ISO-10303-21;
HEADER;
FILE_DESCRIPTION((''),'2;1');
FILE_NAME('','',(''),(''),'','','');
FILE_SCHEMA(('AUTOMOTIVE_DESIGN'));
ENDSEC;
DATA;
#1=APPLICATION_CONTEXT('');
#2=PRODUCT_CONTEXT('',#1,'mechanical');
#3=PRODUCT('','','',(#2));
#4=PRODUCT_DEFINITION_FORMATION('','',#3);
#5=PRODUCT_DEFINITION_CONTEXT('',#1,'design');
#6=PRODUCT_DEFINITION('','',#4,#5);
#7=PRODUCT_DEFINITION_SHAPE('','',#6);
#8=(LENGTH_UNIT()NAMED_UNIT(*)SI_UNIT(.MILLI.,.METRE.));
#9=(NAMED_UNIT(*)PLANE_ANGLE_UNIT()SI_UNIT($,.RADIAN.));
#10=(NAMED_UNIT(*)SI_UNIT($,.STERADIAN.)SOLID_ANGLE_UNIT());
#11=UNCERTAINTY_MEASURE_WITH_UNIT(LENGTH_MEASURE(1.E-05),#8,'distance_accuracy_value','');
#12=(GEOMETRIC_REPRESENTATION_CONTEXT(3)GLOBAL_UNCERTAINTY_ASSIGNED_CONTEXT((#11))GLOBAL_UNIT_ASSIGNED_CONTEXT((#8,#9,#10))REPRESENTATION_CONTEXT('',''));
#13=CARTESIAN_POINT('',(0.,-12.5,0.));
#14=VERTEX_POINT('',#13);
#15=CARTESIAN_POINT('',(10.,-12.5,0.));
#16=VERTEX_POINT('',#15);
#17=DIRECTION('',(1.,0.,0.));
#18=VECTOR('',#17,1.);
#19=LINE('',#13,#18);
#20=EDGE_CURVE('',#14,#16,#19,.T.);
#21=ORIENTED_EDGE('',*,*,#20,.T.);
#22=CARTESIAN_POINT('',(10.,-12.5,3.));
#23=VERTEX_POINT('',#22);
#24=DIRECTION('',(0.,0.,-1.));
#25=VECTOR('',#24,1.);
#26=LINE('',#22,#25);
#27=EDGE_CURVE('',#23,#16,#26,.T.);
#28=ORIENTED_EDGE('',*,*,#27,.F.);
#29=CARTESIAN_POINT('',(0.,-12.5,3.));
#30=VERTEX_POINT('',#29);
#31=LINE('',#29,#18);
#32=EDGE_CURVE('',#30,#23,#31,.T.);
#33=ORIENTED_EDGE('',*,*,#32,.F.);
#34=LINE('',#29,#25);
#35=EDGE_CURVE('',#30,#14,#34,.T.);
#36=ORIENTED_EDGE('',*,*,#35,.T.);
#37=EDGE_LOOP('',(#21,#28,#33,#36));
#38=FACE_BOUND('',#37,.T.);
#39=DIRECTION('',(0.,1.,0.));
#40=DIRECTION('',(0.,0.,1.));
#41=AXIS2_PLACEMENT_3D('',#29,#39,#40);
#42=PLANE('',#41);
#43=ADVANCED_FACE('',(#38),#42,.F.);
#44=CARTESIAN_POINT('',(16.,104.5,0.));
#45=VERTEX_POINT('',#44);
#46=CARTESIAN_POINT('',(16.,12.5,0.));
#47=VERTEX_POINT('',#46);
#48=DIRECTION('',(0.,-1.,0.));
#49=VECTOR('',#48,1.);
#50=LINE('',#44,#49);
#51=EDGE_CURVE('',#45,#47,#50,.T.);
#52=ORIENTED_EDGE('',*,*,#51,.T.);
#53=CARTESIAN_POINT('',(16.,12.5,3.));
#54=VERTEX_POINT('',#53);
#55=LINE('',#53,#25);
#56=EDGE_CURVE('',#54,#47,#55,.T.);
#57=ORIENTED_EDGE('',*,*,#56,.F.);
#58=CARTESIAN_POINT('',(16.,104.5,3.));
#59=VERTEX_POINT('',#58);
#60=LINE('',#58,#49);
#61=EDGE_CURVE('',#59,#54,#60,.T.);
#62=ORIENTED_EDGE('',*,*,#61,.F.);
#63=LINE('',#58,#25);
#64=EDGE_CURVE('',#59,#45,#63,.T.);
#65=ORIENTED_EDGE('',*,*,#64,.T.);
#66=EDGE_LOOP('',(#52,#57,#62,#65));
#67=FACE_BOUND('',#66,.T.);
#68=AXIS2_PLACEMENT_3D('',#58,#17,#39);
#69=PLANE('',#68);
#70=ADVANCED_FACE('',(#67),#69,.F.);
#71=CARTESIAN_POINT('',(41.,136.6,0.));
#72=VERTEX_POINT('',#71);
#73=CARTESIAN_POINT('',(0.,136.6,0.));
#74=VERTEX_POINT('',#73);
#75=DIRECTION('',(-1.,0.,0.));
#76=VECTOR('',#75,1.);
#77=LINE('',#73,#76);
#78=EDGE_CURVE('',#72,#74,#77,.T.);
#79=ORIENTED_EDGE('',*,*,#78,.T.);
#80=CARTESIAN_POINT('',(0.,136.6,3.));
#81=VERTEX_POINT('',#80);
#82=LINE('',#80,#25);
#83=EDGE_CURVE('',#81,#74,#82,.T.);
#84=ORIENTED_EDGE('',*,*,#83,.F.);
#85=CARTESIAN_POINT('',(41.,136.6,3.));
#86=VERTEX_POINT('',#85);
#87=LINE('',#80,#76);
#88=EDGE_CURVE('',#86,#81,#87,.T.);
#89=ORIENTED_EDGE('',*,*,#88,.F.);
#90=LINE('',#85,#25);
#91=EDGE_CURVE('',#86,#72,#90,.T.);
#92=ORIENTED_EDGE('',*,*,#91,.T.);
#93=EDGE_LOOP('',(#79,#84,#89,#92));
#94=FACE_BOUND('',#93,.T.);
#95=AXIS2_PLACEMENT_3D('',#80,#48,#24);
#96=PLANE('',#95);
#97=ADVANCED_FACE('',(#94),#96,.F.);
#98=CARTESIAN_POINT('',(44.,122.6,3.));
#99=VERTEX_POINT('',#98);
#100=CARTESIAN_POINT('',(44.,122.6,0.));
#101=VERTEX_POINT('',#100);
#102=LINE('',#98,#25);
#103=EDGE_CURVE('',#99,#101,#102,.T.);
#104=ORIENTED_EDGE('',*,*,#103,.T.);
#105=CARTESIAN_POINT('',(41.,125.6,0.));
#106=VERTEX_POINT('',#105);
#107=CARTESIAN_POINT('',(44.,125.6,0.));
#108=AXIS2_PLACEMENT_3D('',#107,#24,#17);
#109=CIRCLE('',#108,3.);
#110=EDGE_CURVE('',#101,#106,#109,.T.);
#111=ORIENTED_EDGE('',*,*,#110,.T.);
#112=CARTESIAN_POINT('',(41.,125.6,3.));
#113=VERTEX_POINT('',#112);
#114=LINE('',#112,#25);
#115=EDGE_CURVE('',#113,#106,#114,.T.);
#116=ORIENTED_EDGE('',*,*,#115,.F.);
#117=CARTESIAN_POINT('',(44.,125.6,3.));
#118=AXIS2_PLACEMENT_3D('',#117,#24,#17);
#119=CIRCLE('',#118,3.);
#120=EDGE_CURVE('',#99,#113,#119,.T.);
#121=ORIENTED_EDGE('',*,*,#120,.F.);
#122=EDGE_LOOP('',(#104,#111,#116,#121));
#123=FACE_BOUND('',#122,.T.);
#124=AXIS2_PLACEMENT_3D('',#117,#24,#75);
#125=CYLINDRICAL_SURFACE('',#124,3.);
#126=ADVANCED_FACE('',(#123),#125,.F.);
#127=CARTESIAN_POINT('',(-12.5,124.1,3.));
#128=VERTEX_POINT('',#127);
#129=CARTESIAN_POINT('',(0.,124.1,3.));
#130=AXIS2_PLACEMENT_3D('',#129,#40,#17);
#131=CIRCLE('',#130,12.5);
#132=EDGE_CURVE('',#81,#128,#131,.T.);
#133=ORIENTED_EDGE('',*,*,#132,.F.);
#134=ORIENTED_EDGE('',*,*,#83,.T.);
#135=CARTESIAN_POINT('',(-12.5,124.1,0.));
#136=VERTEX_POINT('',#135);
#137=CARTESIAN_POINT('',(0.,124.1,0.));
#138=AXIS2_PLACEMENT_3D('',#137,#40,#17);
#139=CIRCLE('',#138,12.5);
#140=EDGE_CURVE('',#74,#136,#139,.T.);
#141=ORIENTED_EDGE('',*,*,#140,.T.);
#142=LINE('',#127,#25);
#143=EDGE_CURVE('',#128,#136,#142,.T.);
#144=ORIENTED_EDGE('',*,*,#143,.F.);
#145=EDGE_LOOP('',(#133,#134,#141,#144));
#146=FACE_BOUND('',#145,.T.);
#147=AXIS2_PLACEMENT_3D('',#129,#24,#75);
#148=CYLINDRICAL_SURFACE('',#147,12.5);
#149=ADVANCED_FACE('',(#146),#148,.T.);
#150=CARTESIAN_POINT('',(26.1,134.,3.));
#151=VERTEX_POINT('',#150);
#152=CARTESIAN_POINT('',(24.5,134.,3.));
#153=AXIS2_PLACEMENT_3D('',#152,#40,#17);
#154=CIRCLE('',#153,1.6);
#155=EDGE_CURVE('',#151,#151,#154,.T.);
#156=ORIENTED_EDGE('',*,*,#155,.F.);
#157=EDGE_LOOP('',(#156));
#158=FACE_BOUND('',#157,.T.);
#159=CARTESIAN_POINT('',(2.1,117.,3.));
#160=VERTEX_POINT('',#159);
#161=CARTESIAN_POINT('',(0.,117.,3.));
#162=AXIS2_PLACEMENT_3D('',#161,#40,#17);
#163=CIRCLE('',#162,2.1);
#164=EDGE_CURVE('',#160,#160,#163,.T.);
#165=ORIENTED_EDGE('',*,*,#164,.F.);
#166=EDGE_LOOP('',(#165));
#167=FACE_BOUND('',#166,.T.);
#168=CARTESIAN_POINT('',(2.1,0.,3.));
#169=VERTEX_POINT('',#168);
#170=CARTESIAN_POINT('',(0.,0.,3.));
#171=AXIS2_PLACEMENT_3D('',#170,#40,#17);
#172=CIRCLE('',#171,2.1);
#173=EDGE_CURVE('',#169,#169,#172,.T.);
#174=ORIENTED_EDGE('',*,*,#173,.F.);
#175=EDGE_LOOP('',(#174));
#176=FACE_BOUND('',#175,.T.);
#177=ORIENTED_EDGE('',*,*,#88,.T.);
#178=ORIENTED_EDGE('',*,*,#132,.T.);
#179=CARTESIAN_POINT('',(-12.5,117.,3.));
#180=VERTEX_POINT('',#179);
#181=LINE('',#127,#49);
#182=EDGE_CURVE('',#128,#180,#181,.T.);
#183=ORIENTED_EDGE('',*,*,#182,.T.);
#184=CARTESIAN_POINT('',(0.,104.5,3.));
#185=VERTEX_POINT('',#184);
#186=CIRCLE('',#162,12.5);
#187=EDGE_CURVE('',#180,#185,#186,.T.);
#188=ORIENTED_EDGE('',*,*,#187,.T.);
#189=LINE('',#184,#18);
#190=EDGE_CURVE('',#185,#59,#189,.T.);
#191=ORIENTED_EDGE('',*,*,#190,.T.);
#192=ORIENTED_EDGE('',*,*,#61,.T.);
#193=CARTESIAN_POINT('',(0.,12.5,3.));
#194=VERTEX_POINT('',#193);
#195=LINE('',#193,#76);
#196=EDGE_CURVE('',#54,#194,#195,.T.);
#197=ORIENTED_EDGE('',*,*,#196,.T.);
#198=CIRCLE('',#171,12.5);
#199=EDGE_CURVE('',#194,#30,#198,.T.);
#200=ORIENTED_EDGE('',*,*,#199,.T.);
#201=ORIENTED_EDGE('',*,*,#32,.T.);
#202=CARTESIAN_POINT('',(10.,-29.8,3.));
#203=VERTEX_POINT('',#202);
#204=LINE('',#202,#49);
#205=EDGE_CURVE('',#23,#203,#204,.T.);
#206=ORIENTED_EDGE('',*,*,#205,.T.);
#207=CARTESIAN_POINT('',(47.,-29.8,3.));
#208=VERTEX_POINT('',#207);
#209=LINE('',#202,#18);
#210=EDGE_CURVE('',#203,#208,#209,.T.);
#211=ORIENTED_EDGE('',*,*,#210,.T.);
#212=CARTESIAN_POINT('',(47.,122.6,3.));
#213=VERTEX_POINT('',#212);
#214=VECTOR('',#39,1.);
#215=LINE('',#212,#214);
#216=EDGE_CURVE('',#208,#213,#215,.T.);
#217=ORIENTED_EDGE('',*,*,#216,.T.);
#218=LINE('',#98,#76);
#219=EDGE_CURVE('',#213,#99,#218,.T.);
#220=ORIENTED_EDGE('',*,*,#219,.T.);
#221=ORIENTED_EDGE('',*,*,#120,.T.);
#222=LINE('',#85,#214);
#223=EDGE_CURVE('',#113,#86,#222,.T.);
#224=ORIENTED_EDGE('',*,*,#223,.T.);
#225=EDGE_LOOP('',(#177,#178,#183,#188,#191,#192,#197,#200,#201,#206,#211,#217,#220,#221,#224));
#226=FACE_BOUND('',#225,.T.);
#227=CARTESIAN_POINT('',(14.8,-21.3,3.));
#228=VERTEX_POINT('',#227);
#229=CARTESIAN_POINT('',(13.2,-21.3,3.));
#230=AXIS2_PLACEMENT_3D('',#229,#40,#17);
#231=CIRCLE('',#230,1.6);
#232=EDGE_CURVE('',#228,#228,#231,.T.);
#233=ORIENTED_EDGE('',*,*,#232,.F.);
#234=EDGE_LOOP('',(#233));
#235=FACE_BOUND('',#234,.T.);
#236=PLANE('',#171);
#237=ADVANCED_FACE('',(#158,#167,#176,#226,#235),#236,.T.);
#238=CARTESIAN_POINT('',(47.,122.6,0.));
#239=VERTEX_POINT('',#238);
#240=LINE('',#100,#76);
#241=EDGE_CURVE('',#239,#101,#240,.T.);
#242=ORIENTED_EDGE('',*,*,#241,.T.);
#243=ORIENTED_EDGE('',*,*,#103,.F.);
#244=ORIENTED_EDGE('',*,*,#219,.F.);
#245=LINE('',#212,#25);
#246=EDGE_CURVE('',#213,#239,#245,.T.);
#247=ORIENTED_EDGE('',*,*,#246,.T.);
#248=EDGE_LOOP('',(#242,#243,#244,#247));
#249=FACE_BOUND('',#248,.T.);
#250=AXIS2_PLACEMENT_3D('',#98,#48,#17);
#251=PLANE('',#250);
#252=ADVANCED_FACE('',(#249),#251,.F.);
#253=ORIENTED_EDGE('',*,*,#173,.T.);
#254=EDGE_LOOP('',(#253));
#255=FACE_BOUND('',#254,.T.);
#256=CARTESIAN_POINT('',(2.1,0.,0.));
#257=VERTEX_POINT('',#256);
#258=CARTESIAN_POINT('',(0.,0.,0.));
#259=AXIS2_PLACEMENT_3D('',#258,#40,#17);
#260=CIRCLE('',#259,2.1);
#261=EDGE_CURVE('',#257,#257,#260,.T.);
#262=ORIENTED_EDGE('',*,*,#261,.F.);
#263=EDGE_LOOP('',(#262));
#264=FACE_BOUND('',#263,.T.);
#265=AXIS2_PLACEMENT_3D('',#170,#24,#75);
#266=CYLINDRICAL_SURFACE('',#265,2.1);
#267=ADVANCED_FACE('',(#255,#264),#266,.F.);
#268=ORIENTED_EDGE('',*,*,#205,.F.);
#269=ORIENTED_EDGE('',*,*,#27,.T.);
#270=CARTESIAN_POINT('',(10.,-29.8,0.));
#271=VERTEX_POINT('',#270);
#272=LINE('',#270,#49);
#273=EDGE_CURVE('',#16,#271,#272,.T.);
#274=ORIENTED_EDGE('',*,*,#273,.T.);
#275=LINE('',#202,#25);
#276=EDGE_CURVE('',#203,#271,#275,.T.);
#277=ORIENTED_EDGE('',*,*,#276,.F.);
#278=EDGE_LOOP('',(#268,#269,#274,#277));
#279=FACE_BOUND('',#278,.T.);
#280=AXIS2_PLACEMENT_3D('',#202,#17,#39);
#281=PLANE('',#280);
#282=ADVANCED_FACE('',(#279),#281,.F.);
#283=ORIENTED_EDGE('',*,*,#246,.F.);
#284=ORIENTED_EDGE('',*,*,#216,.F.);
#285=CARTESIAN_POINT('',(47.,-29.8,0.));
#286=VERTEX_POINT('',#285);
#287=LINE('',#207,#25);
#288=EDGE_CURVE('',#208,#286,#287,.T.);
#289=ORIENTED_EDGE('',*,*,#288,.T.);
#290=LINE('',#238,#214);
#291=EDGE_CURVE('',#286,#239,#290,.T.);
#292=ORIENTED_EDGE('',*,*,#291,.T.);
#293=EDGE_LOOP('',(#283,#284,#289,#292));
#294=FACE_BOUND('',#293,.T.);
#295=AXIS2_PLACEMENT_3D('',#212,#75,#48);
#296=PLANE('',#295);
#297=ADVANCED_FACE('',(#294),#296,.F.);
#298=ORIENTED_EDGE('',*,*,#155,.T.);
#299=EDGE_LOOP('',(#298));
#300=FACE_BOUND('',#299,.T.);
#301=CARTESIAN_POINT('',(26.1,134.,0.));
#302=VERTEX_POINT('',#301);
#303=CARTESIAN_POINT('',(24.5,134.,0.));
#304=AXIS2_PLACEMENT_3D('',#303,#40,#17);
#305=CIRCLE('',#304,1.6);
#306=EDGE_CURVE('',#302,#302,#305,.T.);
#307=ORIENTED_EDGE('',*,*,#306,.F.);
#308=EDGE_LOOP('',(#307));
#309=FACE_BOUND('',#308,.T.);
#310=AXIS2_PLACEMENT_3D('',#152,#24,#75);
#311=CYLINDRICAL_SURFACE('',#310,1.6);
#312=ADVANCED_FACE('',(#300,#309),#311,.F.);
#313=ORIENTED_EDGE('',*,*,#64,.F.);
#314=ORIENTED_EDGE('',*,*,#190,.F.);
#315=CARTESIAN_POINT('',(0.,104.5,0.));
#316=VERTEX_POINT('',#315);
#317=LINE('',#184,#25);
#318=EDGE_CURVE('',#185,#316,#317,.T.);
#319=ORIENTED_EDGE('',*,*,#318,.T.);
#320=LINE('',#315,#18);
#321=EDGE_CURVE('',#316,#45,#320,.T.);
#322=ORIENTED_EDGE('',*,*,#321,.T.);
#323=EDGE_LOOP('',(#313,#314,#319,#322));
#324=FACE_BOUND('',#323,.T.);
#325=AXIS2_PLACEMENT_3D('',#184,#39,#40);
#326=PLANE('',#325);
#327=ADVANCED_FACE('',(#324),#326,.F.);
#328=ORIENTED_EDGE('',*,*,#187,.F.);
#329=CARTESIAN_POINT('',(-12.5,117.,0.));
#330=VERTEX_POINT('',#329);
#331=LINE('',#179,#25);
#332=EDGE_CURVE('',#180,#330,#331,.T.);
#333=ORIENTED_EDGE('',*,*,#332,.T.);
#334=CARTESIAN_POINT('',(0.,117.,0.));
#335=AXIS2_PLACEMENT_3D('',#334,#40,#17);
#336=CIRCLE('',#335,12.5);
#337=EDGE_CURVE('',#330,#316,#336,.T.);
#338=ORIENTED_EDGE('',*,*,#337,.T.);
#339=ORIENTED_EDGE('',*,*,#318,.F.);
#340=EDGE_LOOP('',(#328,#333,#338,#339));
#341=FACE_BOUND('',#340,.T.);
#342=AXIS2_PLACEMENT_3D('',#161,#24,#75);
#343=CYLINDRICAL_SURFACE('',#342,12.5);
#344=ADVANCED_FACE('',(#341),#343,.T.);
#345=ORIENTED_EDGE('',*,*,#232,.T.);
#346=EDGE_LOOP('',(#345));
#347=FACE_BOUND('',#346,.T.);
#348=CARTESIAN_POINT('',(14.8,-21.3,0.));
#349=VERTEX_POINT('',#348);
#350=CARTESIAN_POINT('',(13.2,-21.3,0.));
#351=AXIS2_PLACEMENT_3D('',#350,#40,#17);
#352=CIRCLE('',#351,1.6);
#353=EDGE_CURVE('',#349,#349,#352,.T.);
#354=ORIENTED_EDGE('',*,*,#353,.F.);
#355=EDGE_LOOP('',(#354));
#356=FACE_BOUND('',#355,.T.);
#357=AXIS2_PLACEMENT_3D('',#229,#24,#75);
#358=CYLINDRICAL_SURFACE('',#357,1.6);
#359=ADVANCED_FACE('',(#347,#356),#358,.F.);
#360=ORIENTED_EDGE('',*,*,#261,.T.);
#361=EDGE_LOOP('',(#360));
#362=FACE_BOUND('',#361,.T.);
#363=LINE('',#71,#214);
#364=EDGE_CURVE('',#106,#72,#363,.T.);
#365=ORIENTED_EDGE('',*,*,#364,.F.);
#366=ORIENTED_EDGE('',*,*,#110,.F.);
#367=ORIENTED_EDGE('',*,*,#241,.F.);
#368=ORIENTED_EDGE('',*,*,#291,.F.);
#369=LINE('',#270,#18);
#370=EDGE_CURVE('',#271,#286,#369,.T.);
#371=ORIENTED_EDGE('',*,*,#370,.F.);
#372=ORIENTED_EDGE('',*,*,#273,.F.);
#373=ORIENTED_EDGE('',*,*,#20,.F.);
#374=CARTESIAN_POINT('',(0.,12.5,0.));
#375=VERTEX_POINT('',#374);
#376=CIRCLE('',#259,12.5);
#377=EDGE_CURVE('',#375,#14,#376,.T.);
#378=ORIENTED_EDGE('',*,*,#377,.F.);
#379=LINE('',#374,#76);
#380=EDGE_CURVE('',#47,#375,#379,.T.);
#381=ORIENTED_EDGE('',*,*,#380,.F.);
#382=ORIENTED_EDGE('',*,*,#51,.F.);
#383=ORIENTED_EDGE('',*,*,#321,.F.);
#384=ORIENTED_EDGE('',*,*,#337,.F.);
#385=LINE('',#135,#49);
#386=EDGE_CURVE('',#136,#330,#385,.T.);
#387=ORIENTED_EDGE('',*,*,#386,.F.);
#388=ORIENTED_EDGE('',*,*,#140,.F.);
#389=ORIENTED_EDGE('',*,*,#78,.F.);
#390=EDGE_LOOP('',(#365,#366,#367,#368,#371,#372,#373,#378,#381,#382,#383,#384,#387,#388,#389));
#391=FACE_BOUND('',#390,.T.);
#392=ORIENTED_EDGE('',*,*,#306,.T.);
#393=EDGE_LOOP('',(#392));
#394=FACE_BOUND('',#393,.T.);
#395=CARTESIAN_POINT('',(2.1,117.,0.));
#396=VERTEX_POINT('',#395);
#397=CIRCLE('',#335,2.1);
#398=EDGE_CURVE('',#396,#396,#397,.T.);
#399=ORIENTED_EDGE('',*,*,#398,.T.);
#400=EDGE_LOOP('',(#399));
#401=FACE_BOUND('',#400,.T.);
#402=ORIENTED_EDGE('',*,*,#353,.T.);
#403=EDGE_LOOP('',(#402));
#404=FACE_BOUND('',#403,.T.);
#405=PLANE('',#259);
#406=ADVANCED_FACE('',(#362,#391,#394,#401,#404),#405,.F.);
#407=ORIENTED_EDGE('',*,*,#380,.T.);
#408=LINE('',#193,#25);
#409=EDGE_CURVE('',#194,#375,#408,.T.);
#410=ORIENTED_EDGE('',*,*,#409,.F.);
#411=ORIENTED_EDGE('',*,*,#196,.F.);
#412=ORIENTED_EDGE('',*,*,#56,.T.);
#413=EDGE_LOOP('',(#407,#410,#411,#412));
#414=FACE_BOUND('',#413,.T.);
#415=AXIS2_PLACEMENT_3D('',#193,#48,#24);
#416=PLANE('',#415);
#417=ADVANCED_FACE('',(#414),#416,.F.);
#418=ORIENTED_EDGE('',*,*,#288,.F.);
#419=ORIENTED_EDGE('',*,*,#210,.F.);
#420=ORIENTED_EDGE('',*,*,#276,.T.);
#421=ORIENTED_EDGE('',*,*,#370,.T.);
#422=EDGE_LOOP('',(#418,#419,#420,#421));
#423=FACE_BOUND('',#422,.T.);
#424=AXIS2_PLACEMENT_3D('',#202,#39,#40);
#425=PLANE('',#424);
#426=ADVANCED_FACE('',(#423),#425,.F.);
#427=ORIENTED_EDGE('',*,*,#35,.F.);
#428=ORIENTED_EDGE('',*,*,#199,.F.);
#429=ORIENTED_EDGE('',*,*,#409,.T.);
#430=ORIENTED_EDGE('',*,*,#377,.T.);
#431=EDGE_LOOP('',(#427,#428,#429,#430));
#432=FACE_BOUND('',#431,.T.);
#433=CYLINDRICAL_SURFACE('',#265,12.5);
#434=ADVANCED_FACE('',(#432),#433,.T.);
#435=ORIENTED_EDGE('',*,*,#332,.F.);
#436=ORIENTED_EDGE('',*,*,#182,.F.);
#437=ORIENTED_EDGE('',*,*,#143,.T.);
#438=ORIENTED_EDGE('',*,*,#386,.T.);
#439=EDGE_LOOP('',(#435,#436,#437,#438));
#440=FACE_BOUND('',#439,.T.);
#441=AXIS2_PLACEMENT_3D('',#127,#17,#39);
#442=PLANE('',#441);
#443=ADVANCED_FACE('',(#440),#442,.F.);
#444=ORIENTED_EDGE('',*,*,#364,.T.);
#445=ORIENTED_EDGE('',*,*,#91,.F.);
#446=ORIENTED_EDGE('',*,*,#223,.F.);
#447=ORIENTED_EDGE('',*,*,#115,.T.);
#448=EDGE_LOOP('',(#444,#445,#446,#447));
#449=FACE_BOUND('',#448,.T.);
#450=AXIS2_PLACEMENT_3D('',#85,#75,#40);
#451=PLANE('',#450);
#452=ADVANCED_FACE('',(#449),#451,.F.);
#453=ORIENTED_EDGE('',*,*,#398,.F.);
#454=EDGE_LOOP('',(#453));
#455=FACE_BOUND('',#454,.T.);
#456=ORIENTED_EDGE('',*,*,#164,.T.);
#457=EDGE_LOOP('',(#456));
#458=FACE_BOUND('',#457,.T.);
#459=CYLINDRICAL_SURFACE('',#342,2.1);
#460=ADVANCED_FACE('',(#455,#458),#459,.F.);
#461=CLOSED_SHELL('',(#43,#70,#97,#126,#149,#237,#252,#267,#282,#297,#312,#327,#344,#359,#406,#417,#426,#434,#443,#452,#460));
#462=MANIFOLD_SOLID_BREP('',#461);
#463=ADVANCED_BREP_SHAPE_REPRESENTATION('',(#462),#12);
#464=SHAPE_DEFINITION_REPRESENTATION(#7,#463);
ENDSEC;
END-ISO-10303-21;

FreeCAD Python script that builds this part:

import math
import FreeCAD as App
import Part
import Sketcher

V = App.Vector
Q = App.Units.Quantity

doc = App.newDocument("Part")
body = doc.addObject("PartDesign::Body", "Body")

# Sketch on XY plane
sketch1 = doc.addObject("Sketcher::SketchObject", "Sketch")
body.addObject(sketch1)
sketch1.AttachmentSupport = (doc.XY_Plane, [""])
sketch1.MapMode = "FlatFace"
sketch1.addGeometry(Part.LineSegment(V(41, 125.6, 0), V(41, 136.6, 0)), False)
sketch1.addGeometry(Part.LineSegment(V(41, 136.6, 0), V(0, 136.6, 0)), False)
sketch1.addGeometry(Part.ArcOfCircle(Part.Circle(V(0, 124.1, 0), V(0, 0, 1), 12.5), math.radians(90), math.radians(180)), False)
sketch1.addGeometry(Part.LineSegment(V(-12.5, 124.1, 0), V(-12.5, 117, 0)), False)
sketch1.addGeometry(Part.ArcOfCircle(Part.Circle(V(0, 117, 0), V(0, 0, 1), 12.5), math.radians(180), math.radians(270)), False)
sketch1.addGeometry(Part.LineSegment(V(0, 104.5, 0), V(16, 104.5, 0)), False)
sketch1.addGeometry(Part.LineSegment(V(16, 104.5, 0), V(16, 12.5, 0)), False)
sketch1.addGeometry(Part.LineSegment(V(16, 12.5, 0), V(0, 12.5, 0)), False)
sketch1.addGeometry(Part.ArcOfCircle(Part.Circle(V(0, 0, 0), V(0, 0, 1), 12.5), math.radians(90), math.radians(270)), False)
sketch1.addGeometry(Part.LineSegment(V(0, -12.5, 0), V(10, -12.5, 0)), False)
sketch1.addGeometry(Part.LineSegment(V(10, -12.5, 0), V(10, -29.8, 0)), False)
sketch1.addGeometry(Part.LineSegment(V(10, -29.8, 0), V(47, -29.8, 0)), False)
sketch1.addGeometry(Part.LineSegment(V(47, -29.8, 0), V(47, 122.6, 0)), False)
sketch1.addGeometry(Part.LineSegment(V(47, 122.6, 0), V(44, 122.6, 0)), False)
sketch1.addGeometry(Part.ArcOfCircle(Part.Circle(V(44, 125.6, 0), V(0, 0, 1), 3), math.radians(180), math.radians(270)), False)
sketch1.addGeometry(Part.Circle(V(13.2, -21.3, 0), V(0, 0, 1), 1.6), False)
sketch1.addGeometry(Part.Circle(V(0, 0, 0), V(0, 0, 1), 2.1), False)
sketch1.addGeometry(Part.Circle(V(24.5, 134, 0), V(0, 0, 1), 1.6), False)
sketch1.addGeometry(Part.Circle(V(0, 117, 0), V(0, 0, 1), 2.1), False)
sketch1.addConstraint(Sketcher.Constraint("Coincident", 0, 2, 1, 1))
sketch1.addConstraint(Sketcher.Constraint("Tangent", 1, 2, 2, 1))
sketch1.addConstraint(Sketcher.Constraint("Tangent", 2, 2, 3, 1))
sketch1.addConstraint(Sketcher.Constraint("Tangent", 3, 2, 4, 1))
sketch1.addConstraint(Sketcher.Constraint("Tangent", 4, 2, 5, 1))
sketch1.addConstraint(Sketcher.Constraint("Coincident", 5, 2, 6, 1))
sketch1.addConstraint(Sketcher.Constraint("Coincident", 6, 2, 7, 1))
sketch1.addConstraint(Sketcher.Constraint("Tangent", 7, 2, 8, 1))
sketch1.addConstraint(Sketcher.Constraint("Tangent", 8, 2, 9, 1))
sketch1.addConstraint(Sketcher.Constraint("Coincident", 9, 2, 10, 1))
sketch1.addConstraint(Sketcher.Constraint("Coincident", 10, 2, 11, 1))
sketch1.addConstraint(Sketcher.Constraint("Coincident", 11, 2, 12, 1))
sketch1.addConstraint(Sketcher.Constraint("Coincident", 12, 2, 13, 1))
sketch1.addConstraint(Sketcher.Constraint("Tangent", 13, 2, 14, 2))
sketch1.addConstraint(Sketcher.Constraint("Tangent", 14, 1, 0, 1))
sketch1.addConstraint(Sketcher.Constraint("Vertical", 0))
sketch1.addConstraint(Sketcher.Constraint("Horizontal", 1))
sketch1.addConstraint(Sketcher.Constraint("Vertical", 3))
sketch1.addConstraint(Sketcher.Constraint("Horizontal", 5))
sketch1.addConstraint(Sketcher.Constraint("Vertical", 6))
sketch1.addConstraint(Sketcher.Constraint("Horizontal", 7))
sketch1.addConstraint(Sketcher.Constraint("Horizontal", 9))
sketch1.addConstraint(Sketcher.Constraint("Vertical", 10))
sketch1.addConstraint(Sketcher.Constraint("Horizontal", 11))
sketch1.addConstraint(Sketcher.Constraint("Vertical", 12))
sketch1.addConstraint(Sketcher.Constraint("Horizontal", 13))
sketch1.addConstraint(Sketcher.Constraint("Coincident", 8, 3, -1, 1))
sketch1.addConstraint(Sketcher.Constraint("Coincident", 16, 3, -1, 1))
sketch1.addConstraint(Sketcher.Constraint("Coincident", 18, 3, 4, 3))
sketch1.addConstraint(Sketcher.Constraint("Equal", 2, 4))
sketch1.addConstraint(Sketcher.Constraint("Equal", 4, 8))
sketch1.addConstraint(Sketcher.Constraint("Equal", 15, 17))
sketch1.addConstraint(Sketcher.Constraint("Equal", 16, 18))
sketch1.addConstraint(Sketcher.Constraint("PointOnObject", 2, 3, -2))
sketch1.addConstraint(Sketcher.Constraint("Radius", 14, Q("3 mm")))
sketch1.addConstraint(Sketcher.Constraint("Diameter", 15, Q("3.2 mm")))
sketch1.addConstraint(Sketcher.Constraint("Diameter", 16, Q("4.2 mm")))
sketch1.addConstraint(Sketcher.Constraint("Radius", 2, Q("12.5 mm")))
sketch1.addConstraint(Sketcher.Constraint("DistanceX", 1, 2, 1, 1, Q("41 mm")))
sketch1.addConstraint(Sketcher.Constraint("DistanceX", 5, 1, 5, 2, Q("16 mm")))
sketch1.addConstraint(Sketcher.Constraint("DistanceX", 9, 1, 9, 2, Q("10 mm")))
sketch1.addConstraint(Sketcher.Constraint("DistanceX", 11, 1, 11, 2, Q("37 mm")))
sketch1.addConstraint(Sketcher.Constraint("DistanceY", 0, 1, 0, 2, Q("11 mm")))
sketch1.addConstraint(Sketcher.Constraint("DistanceY", 6, 2, 6, 1, Q("92 mm")))
sketch1.addConstraint(Sketcher.Constraint("DistanceY", 3, 2, 3, 1, Q("7.1 mm")))
sketch1.addConstraint(Sketcher.Constraint("DistanceY", 10, 2, 10, 1, Q("17.3 mm")))
sketch1.addConstraint(Sketcher.Constraint("DistanceY", -1, 1, 17, 3, Q("134 mm")))
sketch1.addConstraint(Sketcher.Constraint("DistanceX", 2, 2, 17, 3, Q("37 mm")))
sketch1.addConstraint(Sketcher.Constraint("DistanceX", -1, 1, 15, 3, Q("13.2 mm")))
sketch1.addConstraint(Sketcher.Constraint("DistanceY", 15, 3, -1, 1, Q("21.3 mm")))
pad1 = doc.addObject("PartDesign::Pad", "Pad")
body.addObject(pad1)
pad1.Profile = sketch1
pad1.Length = 3

doc.recompute()
